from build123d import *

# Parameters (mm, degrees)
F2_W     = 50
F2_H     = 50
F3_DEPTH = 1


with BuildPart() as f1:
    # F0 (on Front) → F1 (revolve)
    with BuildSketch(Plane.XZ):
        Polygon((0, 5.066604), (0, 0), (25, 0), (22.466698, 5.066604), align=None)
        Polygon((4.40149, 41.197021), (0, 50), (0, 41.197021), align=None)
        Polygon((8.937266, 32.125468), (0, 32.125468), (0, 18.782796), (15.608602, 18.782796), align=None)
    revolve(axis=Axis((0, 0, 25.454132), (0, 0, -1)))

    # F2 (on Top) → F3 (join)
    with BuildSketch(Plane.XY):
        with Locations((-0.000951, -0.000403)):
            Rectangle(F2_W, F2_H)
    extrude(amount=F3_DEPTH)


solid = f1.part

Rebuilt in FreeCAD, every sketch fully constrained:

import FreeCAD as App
import Part
import Sketcher

V = App.Vector
Q = App.Units.Quantity


def add_polygon(sketch, points):
    """Adds a closed chain of lines whose ends are joined by coincident constraints."""
    first, n = sketch.GeometryCount, len(points)
    for a, b in zip(points, points[1:] + points[:1]):
        sketch.addGeometry(Part.LineSegment(App.Vector(*a, 0), App.Vector(*b, 0)), False)
    for i in range(n):
        sketch.addConstraint(Sketcher.Constraint("Coincident", first + i, 2, first + (i + 1) % n, 1))

doc = App.newDocument("Part")
params = doc.addObject("Spreadsheet::Sheet", "Params")
for row, (alias, value) in enumerate([
    ("sketch1_width", "25 mm"),
    ("revolution_angle", "360 deg"),
    ("sketch2_width", "50 mm"),
    ("pad1_length", "1 mm"),
], start=1):
    params.set(f"A{row}", alias)
    params.set(f"B{row}", "=" + value)
    params.setAlias(f"B{row}", alias)

body = doc.addObject("PartDesign::Body", "Body")
body.AllowCompound = True

sketch1 = doc.addObject("Sketcher::SketchObject", "Sketch")
body.addObject(sketch1)
sketch1.AttachmentSupport = (doc.XZ_Plane, [""])
sketch1.MapMode = "FlatFace"
add_polygon(sketch1, [(0, 5.1), (0, 0), (25, 0), (22.5, 5.1)])
add_polygon(sketch1, [(4.4, 41.2), (0, 50), (0, 41.2)])
add_polygon(sketch1, [(8.9, 32.1), (0, 32.1), (0, 18.8), (15.6, 18.8)])
sketch1.addConstraint([
    Sketcher.Constraint("Vertical", 0),
    Sketcher.Constraint("Horizontal", 1),
    Sketcher.Constraint("Horizontal", 3),
    Sketcher.Constraint("Vertical", 5),
    Sketcher.Constraint("Horizontal", 6),
    Sketcher.Constraint("Horizontal", 7),
    Sketcher.Constraint("Vertical", 8),
    Sketcher.Constraint("Horizontal", 9),
    Sketcher.Constraint("Coincident", 0, 2, -1, 1),
    Sketcher.Constraint("PointOnObject", 4, 2, -2),
    Sketcher.Constraint("PointOnObject", 7, 2, -2),
    Sketcher.Constraint("Parallel", 2, 4),
    Sketcher.Constraint("Parallel", 4, 10),
    Sketcher.Constraint("DistanceX", 1, 1, 1, 2, Q("25 mm")),
    Sketcher.Constraint("DistanceY", -1, 1, 4, 2, Q("50 mm")),
    Sketcher.Constraint("DistanceX", 3, 2, 3, 1, Q("22.466698 mm")),
    Sketcher.Constraint("DistanceX", 6, 1, 6, 2, Q("4.40149 mm")),
    Sketcher.Constraint("DistanceY", 5, 2, 5, 1, Q("8.802979 mm")),
    Sketcher.Constraint("DistanceY", 8, 2, 8, 1, Q("13.342672 mm")),
    Sketcher.Constraint("DistanceX", 7, 2, 7, 1, Q("8.937266 mm")),
    Sketcher.Constraint("DistanceY", -1, 1, 7, 2, Q("32.125468 mm")),
])
sketch1.setExpression("Constraints[24]", "Params.sketch1_width")
revolution = doc.addObject("PartDesign::Revolution", "Revolution")
body.addObject(revolution)
revolution.Profile = sketch1
revolution.ReferenceAxis = (sketch1, ["V_Axis"])
revolution.setExpression("Angle", "Params.revolution_angle")

sketch2 = doc.addObject("Sketcher::SketchObject", "Sketch001")
body.addObject(sketch2)
sketch2.AttachmentSupport = (doc.XY_Plane, [""])
sketch2.MapMode = "FlatFace"
add_polygon(sketch2, [(-25, 25), (-25, -25), (25, -25), (25, 25)])
sketch2.addConstraint([
    Sketcher.Constraint("Vertical", 0),
    Sketcher.Constraint("Horizontal", 1),
    Sketcher.Constraint("Vertical", 2),
    Sketcher.Constraint("Horizontal", 3),
    Sketcher.Constraint("Equal", 3, 0),
    Sketcher.Constraint("DistanceX", 1, 1, 1, 2, Q("50 mm")),
    Sketcher.Constraint("DistanceX", 0, 2, -1, 1, Q("25.000951 mm")),
    Sketcher.Constraint("DistanceY", 0, 2, -1, 1, Q("25.000403 mm")),
])
sketch2.setExpression("Constraints[9]", "Params.sketch2_width")
pad1 = doc.addObject("PartDesign::Pad", "Pad")
body.addObject(pad1)
pad1.Profile = sketch2
pad1.setExpression("Length", "Params.pad1_length")

doc.recompute()
